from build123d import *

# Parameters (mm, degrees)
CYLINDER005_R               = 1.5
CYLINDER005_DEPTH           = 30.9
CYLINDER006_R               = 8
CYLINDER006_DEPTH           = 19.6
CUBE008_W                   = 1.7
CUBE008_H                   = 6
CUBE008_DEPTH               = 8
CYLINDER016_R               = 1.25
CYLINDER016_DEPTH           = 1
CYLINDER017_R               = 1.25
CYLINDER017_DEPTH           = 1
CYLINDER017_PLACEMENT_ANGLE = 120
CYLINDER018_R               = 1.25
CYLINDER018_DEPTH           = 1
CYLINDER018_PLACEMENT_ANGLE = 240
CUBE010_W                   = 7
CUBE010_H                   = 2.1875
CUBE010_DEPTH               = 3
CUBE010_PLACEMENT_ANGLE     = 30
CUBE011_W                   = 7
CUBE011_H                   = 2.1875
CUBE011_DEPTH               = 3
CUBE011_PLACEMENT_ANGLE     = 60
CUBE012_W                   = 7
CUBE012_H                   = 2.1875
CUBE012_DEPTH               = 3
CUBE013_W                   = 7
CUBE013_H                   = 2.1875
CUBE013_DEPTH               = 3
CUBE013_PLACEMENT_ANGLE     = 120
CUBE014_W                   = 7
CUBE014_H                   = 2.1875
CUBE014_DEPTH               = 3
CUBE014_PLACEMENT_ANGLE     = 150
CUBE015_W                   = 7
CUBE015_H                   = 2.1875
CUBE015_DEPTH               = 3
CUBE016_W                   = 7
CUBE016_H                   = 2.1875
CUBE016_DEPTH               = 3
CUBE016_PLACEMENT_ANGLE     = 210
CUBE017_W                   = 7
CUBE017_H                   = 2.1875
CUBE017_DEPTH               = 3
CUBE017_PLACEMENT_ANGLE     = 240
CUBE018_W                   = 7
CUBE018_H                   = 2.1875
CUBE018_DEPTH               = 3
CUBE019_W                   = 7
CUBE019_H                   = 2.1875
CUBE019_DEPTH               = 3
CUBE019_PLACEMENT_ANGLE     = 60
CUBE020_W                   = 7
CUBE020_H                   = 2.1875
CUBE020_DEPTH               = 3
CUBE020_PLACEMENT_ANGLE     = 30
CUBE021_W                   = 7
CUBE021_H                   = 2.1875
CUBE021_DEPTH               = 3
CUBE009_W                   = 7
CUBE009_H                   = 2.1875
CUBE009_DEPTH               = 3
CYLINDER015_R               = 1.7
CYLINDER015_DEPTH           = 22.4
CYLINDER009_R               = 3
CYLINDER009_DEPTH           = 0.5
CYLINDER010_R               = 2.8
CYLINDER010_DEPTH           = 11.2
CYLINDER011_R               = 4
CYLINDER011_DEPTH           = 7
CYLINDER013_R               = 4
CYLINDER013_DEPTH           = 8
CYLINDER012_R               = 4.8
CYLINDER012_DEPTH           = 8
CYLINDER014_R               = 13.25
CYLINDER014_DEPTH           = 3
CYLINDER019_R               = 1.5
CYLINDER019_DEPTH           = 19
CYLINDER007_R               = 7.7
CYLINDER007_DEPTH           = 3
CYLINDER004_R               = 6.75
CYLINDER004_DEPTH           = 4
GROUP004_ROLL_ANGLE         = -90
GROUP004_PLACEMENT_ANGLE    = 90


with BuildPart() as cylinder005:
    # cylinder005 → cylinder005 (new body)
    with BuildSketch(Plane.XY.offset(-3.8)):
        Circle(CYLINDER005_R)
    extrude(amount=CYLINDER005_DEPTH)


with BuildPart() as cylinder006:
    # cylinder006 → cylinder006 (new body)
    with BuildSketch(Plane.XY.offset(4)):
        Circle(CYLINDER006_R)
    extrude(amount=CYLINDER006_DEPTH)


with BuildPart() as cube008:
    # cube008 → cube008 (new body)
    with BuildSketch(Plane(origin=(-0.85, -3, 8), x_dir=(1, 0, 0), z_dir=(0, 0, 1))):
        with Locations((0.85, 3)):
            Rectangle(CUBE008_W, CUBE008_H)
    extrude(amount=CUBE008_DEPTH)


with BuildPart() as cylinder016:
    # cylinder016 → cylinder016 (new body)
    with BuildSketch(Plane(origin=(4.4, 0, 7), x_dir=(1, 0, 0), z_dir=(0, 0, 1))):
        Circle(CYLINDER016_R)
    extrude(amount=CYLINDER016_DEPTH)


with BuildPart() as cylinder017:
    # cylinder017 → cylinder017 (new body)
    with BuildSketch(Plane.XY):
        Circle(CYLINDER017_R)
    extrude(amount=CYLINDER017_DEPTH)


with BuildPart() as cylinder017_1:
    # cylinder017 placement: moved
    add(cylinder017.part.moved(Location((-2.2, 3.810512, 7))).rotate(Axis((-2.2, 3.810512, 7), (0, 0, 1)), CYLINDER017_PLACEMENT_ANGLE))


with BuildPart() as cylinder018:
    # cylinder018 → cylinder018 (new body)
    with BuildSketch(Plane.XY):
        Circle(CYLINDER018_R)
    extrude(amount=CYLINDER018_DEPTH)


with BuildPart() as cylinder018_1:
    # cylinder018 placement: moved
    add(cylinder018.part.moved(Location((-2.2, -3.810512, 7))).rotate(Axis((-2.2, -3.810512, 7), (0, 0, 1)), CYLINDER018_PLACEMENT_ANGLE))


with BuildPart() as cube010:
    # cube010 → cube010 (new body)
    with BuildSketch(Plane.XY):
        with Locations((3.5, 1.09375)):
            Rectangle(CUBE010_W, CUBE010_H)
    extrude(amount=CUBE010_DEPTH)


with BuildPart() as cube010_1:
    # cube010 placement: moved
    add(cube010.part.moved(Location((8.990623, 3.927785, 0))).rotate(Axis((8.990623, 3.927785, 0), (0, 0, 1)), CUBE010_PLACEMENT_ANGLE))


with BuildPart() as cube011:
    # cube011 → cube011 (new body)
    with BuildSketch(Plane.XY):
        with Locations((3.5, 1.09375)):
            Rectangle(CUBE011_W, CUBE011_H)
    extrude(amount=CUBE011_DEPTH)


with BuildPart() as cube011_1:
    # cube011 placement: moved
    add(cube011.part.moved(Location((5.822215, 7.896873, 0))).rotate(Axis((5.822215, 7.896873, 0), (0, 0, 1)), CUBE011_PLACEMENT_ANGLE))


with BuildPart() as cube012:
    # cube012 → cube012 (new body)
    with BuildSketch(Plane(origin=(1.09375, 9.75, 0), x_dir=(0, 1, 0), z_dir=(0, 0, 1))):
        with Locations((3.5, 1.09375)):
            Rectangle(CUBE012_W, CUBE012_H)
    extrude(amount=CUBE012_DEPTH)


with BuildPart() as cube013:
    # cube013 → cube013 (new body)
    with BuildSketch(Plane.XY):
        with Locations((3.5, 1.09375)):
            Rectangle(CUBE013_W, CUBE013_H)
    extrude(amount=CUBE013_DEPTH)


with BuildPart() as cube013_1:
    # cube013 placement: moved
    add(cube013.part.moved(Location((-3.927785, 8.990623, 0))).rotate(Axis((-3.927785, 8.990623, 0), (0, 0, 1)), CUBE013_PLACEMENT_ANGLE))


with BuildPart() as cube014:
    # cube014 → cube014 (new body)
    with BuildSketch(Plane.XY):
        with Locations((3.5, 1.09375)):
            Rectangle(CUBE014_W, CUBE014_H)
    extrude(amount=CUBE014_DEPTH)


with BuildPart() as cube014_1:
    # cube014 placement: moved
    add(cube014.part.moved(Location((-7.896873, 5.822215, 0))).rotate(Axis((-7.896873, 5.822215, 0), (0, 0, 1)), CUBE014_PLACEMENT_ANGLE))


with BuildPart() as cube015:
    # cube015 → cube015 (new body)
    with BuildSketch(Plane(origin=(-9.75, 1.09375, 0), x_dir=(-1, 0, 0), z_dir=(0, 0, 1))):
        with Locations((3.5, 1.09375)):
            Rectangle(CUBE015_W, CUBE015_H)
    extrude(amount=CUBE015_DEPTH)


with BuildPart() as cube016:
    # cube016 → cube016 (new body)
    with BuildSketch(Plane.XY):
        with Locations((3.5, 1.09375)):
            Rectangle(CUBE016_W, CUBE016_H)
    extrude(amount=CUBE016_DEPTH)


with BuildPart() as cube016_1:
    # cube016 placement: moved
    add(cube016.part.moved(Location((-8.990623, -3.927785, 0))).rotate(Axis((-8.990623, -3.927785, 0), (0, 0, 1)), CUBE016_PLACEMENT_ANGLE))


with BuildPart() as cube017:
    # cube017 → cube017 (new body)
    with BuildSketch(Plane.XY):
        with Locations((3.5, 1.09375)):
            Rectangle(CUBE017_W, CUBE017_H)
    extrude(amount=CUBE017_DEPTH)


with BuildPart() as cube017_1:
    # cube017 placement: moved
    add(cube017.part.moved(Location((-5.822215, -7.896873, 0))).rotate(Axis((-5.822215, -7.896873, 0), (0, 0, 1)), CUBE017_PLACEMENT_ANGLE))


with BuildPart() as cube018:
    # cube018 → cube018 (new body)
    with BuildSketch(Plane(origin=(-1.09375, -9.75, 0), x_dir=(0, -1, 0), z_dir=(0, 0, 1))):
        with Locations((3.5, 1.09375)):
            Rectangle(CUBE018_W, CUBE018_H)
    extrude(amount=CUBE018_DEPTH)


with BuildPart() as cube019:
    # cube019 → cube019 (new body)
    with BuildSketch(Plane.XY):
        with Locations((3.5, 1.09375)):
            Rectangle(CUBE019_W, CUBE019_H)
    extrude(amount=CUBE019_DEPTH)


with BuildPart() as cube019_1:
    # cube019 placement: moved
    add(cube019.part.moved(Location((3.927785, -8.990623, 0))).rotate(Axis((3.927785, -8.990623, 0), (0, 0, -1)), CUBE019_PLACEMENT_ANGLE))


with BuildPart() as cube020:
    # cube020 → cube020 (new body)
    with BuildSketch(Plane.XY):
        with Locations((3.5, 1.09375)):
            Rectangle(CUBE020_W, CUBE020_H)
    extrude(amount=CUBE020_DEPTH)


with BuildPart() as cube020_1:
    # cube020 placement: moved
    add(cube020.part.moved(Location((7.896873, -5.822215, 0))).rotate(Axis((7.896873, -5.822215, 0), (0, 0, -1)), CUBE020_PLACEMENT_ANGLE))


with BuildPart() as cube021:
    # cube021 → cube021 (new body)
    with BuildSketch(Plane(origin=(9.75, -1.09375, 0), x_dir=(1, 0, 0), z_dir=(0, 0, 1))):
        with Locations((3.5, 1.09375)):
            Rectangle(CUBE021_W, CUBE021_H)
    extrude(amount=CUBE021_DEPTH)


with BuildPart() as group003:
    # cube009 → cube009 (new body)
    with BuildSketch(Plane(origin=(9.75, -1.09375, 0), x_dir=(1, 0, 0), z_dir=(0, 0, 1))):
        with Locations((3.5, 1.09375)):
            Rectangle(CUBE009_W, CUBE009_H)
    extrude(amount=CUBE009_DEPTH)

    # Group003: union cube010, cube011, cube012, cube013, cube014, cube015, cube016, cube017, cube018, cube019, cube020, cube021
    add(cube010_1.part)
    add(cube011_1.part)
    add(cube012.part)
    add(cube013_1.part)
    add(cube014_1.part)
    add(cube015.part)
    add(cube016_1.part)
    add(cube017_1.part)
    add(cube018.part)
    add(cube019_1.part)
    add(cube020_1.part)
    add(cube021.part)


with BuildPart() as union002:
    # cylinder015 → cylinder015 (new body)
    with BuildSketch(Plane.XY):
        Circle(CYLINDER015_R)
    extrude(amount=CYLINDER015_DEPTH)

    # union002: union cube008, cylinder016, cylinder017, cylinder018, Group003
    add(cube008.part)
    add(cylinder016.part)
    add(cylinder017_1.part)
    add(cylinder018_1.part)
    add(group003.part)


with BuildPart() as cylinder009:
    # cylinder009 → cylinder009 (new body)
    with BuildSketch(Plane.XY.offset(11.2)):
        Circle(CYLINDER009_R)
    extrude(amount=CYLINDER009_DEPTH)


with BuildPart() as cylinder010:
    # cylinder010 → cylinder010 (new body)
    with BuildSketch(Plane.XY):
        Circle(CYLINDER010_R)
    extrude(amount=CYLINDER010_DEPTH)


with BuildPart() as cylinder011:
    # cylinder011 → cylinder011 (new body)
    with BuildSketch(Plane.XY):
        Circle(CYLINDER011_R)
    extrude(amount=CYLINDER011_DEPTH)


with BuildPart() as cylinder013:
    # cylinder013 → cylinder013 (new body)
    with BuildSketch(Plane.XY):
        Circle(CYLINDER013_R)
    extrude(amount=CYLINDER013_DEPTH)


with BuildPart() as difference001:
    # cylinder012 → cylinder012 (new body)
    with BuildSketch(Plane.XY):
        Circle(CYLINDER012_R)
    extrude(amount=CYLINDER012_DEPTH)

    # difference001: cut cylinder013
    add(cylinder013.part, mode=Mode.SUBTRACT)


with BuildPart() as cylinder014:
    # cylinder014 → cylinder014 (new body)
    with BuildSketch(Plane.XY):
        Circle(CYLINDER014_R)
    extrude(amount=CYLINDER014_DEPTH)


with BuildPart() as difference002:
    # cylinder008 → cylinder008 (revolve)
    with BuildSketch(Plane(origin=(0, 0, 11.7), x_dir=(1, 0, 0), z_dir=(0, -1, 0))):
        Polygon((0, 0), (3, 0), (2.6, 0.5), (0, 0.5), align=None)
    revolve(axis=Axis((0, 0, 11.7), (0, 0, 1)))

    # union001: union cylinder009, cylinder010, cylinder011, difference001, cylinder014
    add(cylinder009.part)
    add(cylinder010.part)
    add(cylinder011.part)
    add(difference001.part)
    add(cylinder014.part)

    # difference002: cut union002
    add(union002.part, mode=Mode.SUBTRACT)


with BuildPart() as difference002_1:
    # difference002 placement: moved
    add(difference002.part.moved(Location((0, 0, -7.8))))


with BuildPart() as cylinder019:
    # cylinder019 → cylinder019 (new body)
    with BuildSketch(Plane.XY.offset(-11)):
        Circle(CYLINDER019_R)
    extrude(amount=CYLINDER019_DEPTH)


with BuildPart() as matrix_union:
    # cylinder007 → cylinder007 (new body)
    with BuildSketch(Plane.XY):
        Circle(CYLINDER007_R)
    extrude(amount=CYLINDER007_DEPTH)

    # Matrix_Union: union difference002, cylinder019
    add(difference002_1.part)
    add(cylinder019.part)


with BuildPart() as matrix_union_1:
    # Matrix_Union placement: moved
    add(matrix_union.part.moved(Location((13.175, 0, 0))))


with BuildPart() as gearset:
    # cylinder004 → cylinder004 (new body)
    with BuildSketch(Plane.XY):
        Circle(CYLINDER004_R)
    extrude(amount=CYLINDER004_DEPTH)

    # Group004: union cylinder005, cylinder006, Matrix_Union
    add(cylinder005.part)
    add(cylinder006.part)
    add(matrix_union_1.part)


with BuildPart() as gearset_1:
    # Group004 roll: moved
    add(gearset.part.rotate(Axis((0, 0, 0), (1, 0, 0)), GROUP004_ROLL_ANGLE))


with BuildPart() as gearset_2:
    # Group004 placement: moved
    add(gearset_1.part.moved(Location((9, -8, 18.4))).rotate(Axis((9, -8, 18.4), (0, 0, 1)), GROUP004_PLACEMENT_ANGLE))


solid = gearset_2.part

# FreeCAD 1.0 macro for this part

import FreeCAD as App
import Part
import Sketcher

doc = App.newDocument("Part")
params = doc.addObject("Spreadsheet::Sheet", "Params")
for row, (alias, value) in enumerate([
    ("sketch1_diameter", "3 mm"),
    ("pad1_length", "30.9 mm"),
    ("sketch2_diameter", "16 mm"),
    ("pad2_length", "19.6 mm"),
    ("sketch3_height", "6 mm"),
    ("sketch3_width", "1.7 mm"),
    ("pad3_length", "8 mm"),
    ("sketch4_diameter", "2.5 mm"),
    ("pad4_length", "1 mm"),
    ("sketch5_diameter", "2.5 mm"),
    ("pad5_length", "1 mm"),
    ("sketch6_diameter", "2.5 mm"),
    ("pad6_length", "1 mm"),
    ("sketch7_width", "7 mm"),
    ("pad7_length", "3 mm"),
    ("sketch8_width", "7 mm"),
    ("pad8_length", "3 mm"),
    ("sketch9_height", "7 mm"),
    ("pad9_length", "3 mm"),
    ("sketch10_width", "7 mm"),
    ("pad10_length", "3 mm"),
    ("sketch11_width", "7 mm"),
    ("pad11_length", "3 mm"),
    ("sketch12_width", "7 mm"),
    ("pad12_length", "3 mm"),
    ("sketch13_width", "7 mm"),
    ("pad13_length", "3 mm"),
    ("sketch14_width", "7 mm"),
    ("pad14_length", "3 mm"),
    ("sketch15_height", "7 mm"),
    ("pad15_length", "3 mm"),
    ("sketch16_width", "7 mm"),
    ("pad16_length", "3 mm"),
    ("sketch17_width", "7 mm"),
    ("pad17_length", "3 mm"),
    ("sketch18_width", "7 mm"),
    ("pad18_length", "3 mm"),
    ("sketch19_width", "7 mm"),
    ("pad19_length", "3 mm"),
    ("sketch20_diameter", "3.4 mm"),
    ("pad20_length", "22.4 mm"),
    ("sketch21_diameter", "6 mm"),
    ("pad21_length", "0.5 mm"),
    ("sketch22_diameter", "5.6 mm"),
    ("pad22_length", "11.2 mm"),
    ("sketch23_diameter", "8 mm"),
    ("pad23_length", "7 mm"),
    ("sketch24_diameter", "8 mm"),
    ("pad24_length", "8 mm"),
    ("sketch25_diameter", "9.6 mm"),
    ("pad25_length", "8 mm"),
    ("sketch26_diameter", "26.5 mm"),
    ("pad26_length", "3 mm"),
    ("sketch27_width", "3 mm"),
    ("sketch27_width2", "2.6 mm"),
    ("sketch27_height", "0.5 mm"),
    ("revolution_angle", "360 deg"),
    ("sketch28_diameter", "3 mm"),
    ("pad27_length", "19 mm"),
    ("sketch29_diameter", "15.4 mm"),
    ("pad28_length", "3 mm"),
    ("sketch30_diameter", "13.5 mm"),
    ("pad29_length", "4 mm"),
], start=1):
    params.set(f"A{row}", alias)
    params.set(f"B{row}", "=" + value)
    params.setAlias(f"B{row}", alias)

body = doc.addObject("PartDesign::Body", "Body")

# Sketch on XY plane
sketch1 = body.newObject("Sketcher::SketchObject", "Sketch")
sketch1.AttachmentSupport = (doc.getObject("XY_Plane"), [""])
sketch1.MapMode = "FlatFace"
sketch1.AttachmentOffset = App.Placement(App.Vector(0, 0, -3.8), App.Rotation())
sketch1.addGeometry(Part.Circle(App.Vector(0, 0, 0), App.Vector(0, 0, 1), 1.5), False)
sketch1.addConstraint([
    Sketcher.Constraint("Coincident", 0, 3, -1, 1),
    Sketcher.Constraint("Diameter", 0, 3.0),
])
sketch1.setExpression("Constraints[1]", "Params.sketch1_diameter")
pad1 = body.newObject("PartDesign::Pad", "Pad")
pad1.Profile = sketch1
pad1.setExpression("Length", "Params.pad1_length")
body2 = doc.addObject("PartDesign::Body", "Body001")

# Sketch on XY plane
sketch2 = body2.newObject("Sketcher::SketchObject", "Sketch001")
sketch2.AttachmentSupport = (doc.getObject("XY_Plane001"), [""])
sketch2.MapMode = "FlatFace"
sketch2.AttachmentOffset = App.Placement(App.Vector(0, 0, 4), App.Rotation())
sketch2.addGeometry(Part.Circle(App.Vector(0, 0, 0), App.Vector(0, 0, 1), 8), False)
sketch2.addConstraint([
    Sketcher.Constraint("Coincident", 0, 3, -1, 1),
    Sketcher.Constraint("Diameter", 0, 16.0),
])
sketch2.setExpression("Constraints[1]", "Params.sketch2_diameter")
pad2 = body2.newObject("PartDesign::Pad", "Pad001")
pad2.Profile = sketch2
pad2.setExpression("Length", "Params.pad2_length")
body3 = doc.addObject("PartDesign::Body", "Body002")

# Sketch on XY plane
sketch3 = body3.newObject("Sketcher::SketchObject", "Sketch002")
sketch3.AttachmentSupport = (doc.getObject("XY_Plane002"), [""])
sketch3.MapMode = "FlatFace"
sketch3.AttachmentOffset = App.Placement(App.Vector(0, 0, 8), App.Rotation())
sketch3.addGeometry([
    Part.LineSegment(App.Vector(-0.8, 3, 0), App.Vector(-0.8, -3, 0)),
    Part.LineSegment(App.Vector(-0.8, -3, 0), App.Vector(0.8, -3, 0)),
    Part.LineSegment(App.Vector(0.8, -3, 0), App.Vector(0.8, 3, 0)),
    Part.LineSegment(App.Vector(0.8, 3, 0), App.Vector(-0.8, 3, 0)),
], False)
sketch3.addConstraint([
    Sketcher.Constraint("Coincident", 0, 2, 1, 1),
    Sketcher.Constraint("Coincident", 1, 2, 2, 1),
    Sketcher.Constraint("Coincident", 2, 2, 3, 1),
    Sketcher.Constraint("Coincident", 3, 2, 0, 1),
    Sketcher.Constraint("Vertical", 0),
    Sketcher.Constraint("Horizontal", 1),
    Sketcher.Constraint("Vertical", 2),
    Sketcher.Constraint("Horizontal", 3),
    Sketcher.Constraint("Symmetric", 0, 2, 2, 2, -1, 1),
    Sketcher.Constraint("DistanceY", 0, 2, 0, 1, 6.0),
    Sketcher.Constraint("DistanceX", 1, 1, 1, 2, 1.7),
])
sketch3.setExpression("Constraints[9]", "Params.sketch3_height")
sketch3.setExpression("Constraints[10]", "Params.sketch3_width")
pad3 = body3.newObject("PartDesign::Pad", "Pad002")
pad3.Profile = sketch3
pad3.setExpression("Length", "Params.pad3_length")
body4 = doc.addObject("PartDesign::Body", "Body003")

# Sketch on XY plane
sketch4 = body4.newObject("Sketcher::SketchObject", "Sketch003")
sketch4.AttachmentSupport = (doc.getObject("XY_Plane003"), [""])
sketch4.MapMode = "FlatFace"
sketch4.AttachmentOffset = App.Placement(App.Vector(0, 0, 7), App.Rotation())
sketch4.addGeometry(Part.Circle(App.Vector(4.4, 0, 0), App.Vector(0, 0, 1), 1.2), False)
sketch4.addConstraint([
    Sketcher.Constraint("PointOnObject", 0, 3, -1),
    Sketcher.Constraint("Diameter", 0, 2.5),
    Sketcher.Constraint("DistanceX", -1, 1, 0, 3, 4.4),
])
sketch4.setExpression("Constraints[1]", "Params.sketch4_diameter")
pad4 = body4.newObject("PartDesign::Pad", "Pad003")
pad4.Profile = sketch4
pad4.setExpression("Length", "Params.pad4_length")
body5 = doc.addObject("PartDesign::Body", "Body004")

# Sketch on XY plane
sketch5 = body5.newObject("Sketcher::SketchObject", "Sketch004")
sketch5.AttachmentSupport = (doc.getObject("XY_Plane004"), [""])
sketch5.MapMode = "FlatFace"
sketch5.addGeometry(Part.Circle(App.Vector(0, 0, 0), App.Vector(0, 0, 1), 1.2), False)
sketch5.addConstraint([
    Sketcher.Constraint("Coincident", 0, 3, -1, 1),
    Sketcher.Constraint("Diameter", 0, 2.5),
])
sketch5.setExpression("Constraints[1]", "Params.sketch5_diameter")
pad5 = body5.newObject("PartDesign::Pad", "Pad004")
pad5.Profile = sketch5
pad5.setExpression("Length", "Params.pad5_length")
body6 = doc.addObject("PartDesign::Body", "Body005")
doc.recompute()

body5.Placement = App.Placement(App.Vector(-2.2, 3.810512, 7), App.Rotation(App.Vector(0, 0, 1), 120))
boolean = body6.newObject("PartDesign::Boolean", "Boolean")
boolean.Type = "Fuse"
boolean.addObjects([body5])
body7 = doc.addObject("PartDesign::Body", "Body006")

# Sketch on XY plane
sketch6 = body7.newObject("Sketcher::SketchObject", "Sketch005")
sketch6.AttachmentSupport = (doc.getObject("XY_Plane006"), [""])
sketch6.MapMode = "FlatFace"
sketch6.addGeometry(Part.Circle(App.Vector(0, 0, 0), App.Vector(0, 0, 1), 1.2), False)
sketch6.addConstraint([
    Sketcher.Constraint("Coincident", 0, 3, -1, 1),
    Sketcher.Constraint("Diameter", 0, 2.5),
])
sketch6.setExpression("Constraints[1]", "Params.sketch6_diameter")
pad6 = body7.newObject("PartDesign::Pad", "Pad005")
pad6.Profile = sketch6
pad6.setExpression("Length", "Params.pad6_length")
body8 = doc.addObject("PartDesign::Body", "Body007")
doc.recompute()

body7.Placement = App.Placement(App.Vector(-2.2, -3.810512, 7), App.Rotation(App.Vector(0, 0, 1), 240))
boolean2 = body8.newObject("PartDesign::Boolean", "Boolean001")
boolean2.Type = "Fuse"
boolean2.addObjects([body7])
body9 = doc.addObject("PartDesign::Body", "Body008")

# Sketch on XY plane
sketch7 = body9.newObject("Sketcher::SketchObject", "Sketch006")
sketch7.AttachmentSupport = (doc.getObject("XY_Plane008"), [""])
sketch7.MapMode = "FlatFace"
sketch7.addGeometry([
    Part.LineSegment(App.Vector(0, 2.2, 0), App.Vector(0, 0, 0)),
    Part.LineSegment(App.Vector(0, 0, 0), App.Vector(7, 0, 0)),
    Part.LineSegment(App.Vector(7, 0, 0), App.Vector(7, 2.2, 0)),
    Part.LineSegment(App.Vector(7, 2.2, 0), App.Vector(0, 2.2, 0)),
], False)
sketch7.addConstraint([
    Sketcher.Constraint("Coincident", 0, 2, 1, 1),
    Sketcher.Constraint("Coincident", 1, 2, 2, 1),
    Sketcher.Constraint("Coincident", 2, 2, 3, 1),
    Sketcher.Constraint("Coincident", 3, 2, 0, 1),
    Sketcher.Constraint("Vertical", 0),
    Sketcher.Constraint("Horizontal", 1),
    Sketcher.Constraint("Vertical", 2),
    Sketcher.Constraint("Horizontal", 3),
    Sketcher.Constraint("Coincident", 0, 2, -1, 1),
    Sketcher.Constraint("DistanceX", 1, 1, 1, 2, 7.0),
    Sketcher.Constraint("DistanceY", 0, 2, 0, 1, 2.1875),
])
sketch7.setExpression("Constraints[9]", "Params.sketch7_width")
pad7 = body9.newObject("PartDesign::Pad", "Pad006")
pad7.Profile = sketch7
pad7.setExpression("Length", "Params.pad7_length")
body10 = doc.addObject("PartDesign::Body", "Body009")
doc.recompute()

body9.Placement = App.Placement(App.Vector(8.990623, 3.927785, 0), App.Rotation(App.Vector(0, 0, 1), 30))
boolean3 = body10.newObject("PartDesign::Boolean", "Boolean002")
boolean3.Type = "Fuse"
boolean3.addObjects([body9])
body11 = doc.addObject("PartDesign::Body", "Body010")

# Sketch on XY plane
sketch8 = body11.newObject("Sketcher::SketchObject", "Sketch007")
sketch8.AttachmentSupport = (doc.getObject("XY_Plane010"), [""])
sketch8.MapMode = "FlatFace"
sketch8.addGeometry([
    Part.LineSegment(App.Vector(0, 2.2, 0), App.Vector(0, 0, 0)),
    Part.LineSegment(App.Vector(0, 0, 0), App.Vector(7, 0, 0)),
    Part.LineSegment(App.Vector(7, 0, 0), App.Vector(7, 2.2, 0)),
    Part.LineSegment(App.Vector(7, 2.2, 0), App.Vector(0, 2.2, 0)),
], False)
sketch8.addConstraint([
    Sketcher.Constraint("Coincident", 0, 2, 1, 1),
    Sketcher.Constraint("Coincident", 1, 2, 2, 1),
    Sketcher.Constraint("Coincident", 2, 2, 3, 1),
    Sketcher.Constraint("Coincident", 3, 2, 0, 1),
    Sketcher.Constraint("Vertical", 0),
    Sketcher.Constraint("Horizontal", 1),
    Sketcher.Constraint("Vertical", 2),
    Sketcher.Constraint("Horizontal", 3),
    Sketcher.Constraint("Coincident", 0, 2, -1, 1),
    Sketcher.Constraint("DistanceX", 1, 1, 1, 2, 7.0),
    Sketcher.Constraint("DistanceY", 0, 2, 0, 1, 2.1875),
])
sketch8.setExpression("Constraints[9]", "Params.sketch8_width")
pad8 = body11.newObject("PartDesign::Pad", "Pad007")
pad8.Profile = sketch8
pad8.setExpression("Length", "Params.pad8_length")
body12 = doc.addObject("PartDesign::Body", "Body011")
doc.recompute()

body11.Placement = App.Placement(App.Vector(5.822215, 7.896873, 0), App.Rotation(App.Vector(0, 0, 1), 60))
boolean4 = body12.newObject("PartDesign::Boolean", "Boolean003")
boolean4.Type = "Fuse"
boolean4.addObjects([body11])
body13 = doc.addObject("PartDesign::Body", "Body012")

# Sketch on XY plane
sketch9 = body13.newObject("Sketcher::SketchObject", "Sketch008")
sketch9.AttachmentSupport = (doc.getObject("XY_Plane012"), [""])
sketch9.MapMode = "FlatFace"
sketch9.addGeometry([
    Part.LineSegment(App.Vector(-1.1, 9.8, 0), App.Vector(1.1, 9.8, 0)),
    Part.LineSegment(App.Vector(1.1, 9.8, 0), App.Vector(1.1, 16.8, 0)),
    Part.LineSegment(App.Vector(1.1, 16.8, 0), App.Vector(-1.1, 16.8, 0)),
    Part.LineSegment(App.Vector(-1.1, 16.8, 0), App.Vector(-1.1, 9.8, 0)),
], False)
sketch9.addConstraint([
    Sketcher.Constraint("Coincident", 0, 2, 1, 1),
    Sketcher.Constraint("Coincident", 1, 2, 2, 1),
    Sketcher.Constraint("Coincident", 2, 2, 3, 1),
    Sketcher.Constraint("Coincident", 3, 2, 0, 1),
    Sketcher.Constraint("Horizontal", 0),
    Sketcher.Constraint("Vertical", 1),
    Sketcher.Constraint("Horizontal", 2),
    Sketcher.Constraint("Vertical", 3),
    Sketcher.Constraint("DistanceY", 1, 1, 1, 2, 7.0),
    Sketcher.Constraint("DistanceY", -1, 1, 0, 2, 9.75),
    Sketcher.Constraint("DistanceX", 0, 1, 0, 2, 2.1875),
    Sketcher.Constraint("DistanceX", -1, 1, 0, 2, 1.09375),
])
sketch9.setExpression("Constraints[8]", "Params.sketch9_height")
pad9 = body13.newObject("PartDesign::Pad", "Pad008")
pad9.Profile = sketch9
pad9.setExpression("Length", "Params.pad9_length")
body14 = doc.addObject("PartDesign::Body", "Body013")

# Sketch on XY plane
sketch10 = body14.newObject("Sketcher::SketchObject", "Sketch009")
sketch10.AttachmentSupport = (doc.getObject("XY_Plane013"), [""])
sketch10.MapMode = "FlatFace"
sketch10.addGeometry([
    Part.LineSegment(App.Vector(0, 2.2, 0), App.Vector(0, 0, 0)),
    Part.LineSegment(App.Vector(0, 0, 0), App.Vector(7, 0, 0)),
    Part.LineSegment(App.Vector(7, 0, 0), App.Vector(7, 2.2, 0)),
    Part.LineSegment(App.Vector(7, 2.2, 0), App.Vector(0, 2.2, 0)),
], False)
sketch10.addConstraint([
    Sketcher.Constraint("Coincident", 0, 2, 1, 1),
    Sketcher.Constraint("Coincident", 1, 2, 2, 1),
    Sketcher.Constraint("Coincident", 2, 2, 3, 1),
    Sketcher.Constraint("Coincident", 3, 2, 0, 1),
    Sketcher.Constraint("Vertical", 0),
    Sketcher.Constraint("Horizontal", 1),
    Sketcher.Constraint("Vertical", 2),
    Sketcher.Constraint("Horizontal", 3),
    Sketcher.Constraint("Coincident", 0, 2, -1, 1),
    Sketcher.Constraint("DistanceX", 1, 1, 1, 2, 7.0),
    Sketcher.Constraint("DistanceY", 0, 2, 0, 1, 2.1875),
])
sketch10.setExpression("Constraints[9]", "Params.sketch10_width")
pad10 = body14.newObject("PartDesign::Pad", "Pad009")
pad10.Profile = sketch10
pad10.setExpression("Length", "Params.pad10_length")
body15 = doc.addObject("PartDesign::Body", "Body014")
doc.recompute()

body14.Placement = App.Placement(App.Vector(-3.927785, 8.990623, 0), App.Rotation(App.Vector(0, 0, 1), 120))
boolean5 = body15.newObject("PartDesign::Boolean", "Boolean004")
boolean5.Type = "Fuse"
boolean5.addObjects([body14])
body16 = doc.addObject("PartDesign::Body", "Body015")

# Sketch on XY plane
sketch11 = body16.newObject("Sketcher::SketchObject", "Sketch010")
sketch11.AttachmentSupport = (doc.getObject("XY_Plane015"), [""])
sketch11.MapMode = "FlatFace"
sketch11.addGeometry([
    Part.LineSegment(App.Vector(0, 2.2, 0), App.Vector(0, 0, 0)),
    Part.LineSegment(App.Vector(0, 0, 0), App.Vector(7, 0, 0)),
    Part.LineSegment(App.Vector(7, 0, 0), App.Vector(7, 2.2, 0)),
    Part.LineSegment(App.Vector(7, 2.2, 0), App.Vector(0, 2.2, 0)),
], False)
sketch11.addConstraint([
    Sketcher.Constraint("Coincident", 0, 2, 1, 1),
    Sketcher.Constraint("Coincident", 1, 2, 2, 1),
    Sketcher.Constraint("Coincident", 2, 2, 3, 1),
    Sketcher.Constraint("Coincident", 3, 2, 0, 1),
    Sketcher.Constraint("Vertical", 0),
    Sketcher.Constraint("Horizontal", 1),
    Sketcher.Constraint("Vertical", 2),
    Sketcher.Constraint("Horizontal", 3),
    Sketcher.Constraint("Coincident", 0, 2, -1, 1),
    Sketcher.Constraint("DistanceX", 1, 1, 1, 2, 7.0),
    Sketcher.Constraint("DistanceY", 0, 2, 0, 1, 2.1875),
])
sketch11.setExpression("Constraints[9]", "Params.sketch11_width")
pad11 = body16.newObject("PartDesign::Pad", "Pad010")
pad11.Profile = sketch11
pad11.setExpression("Length", "Params.pad11_length")
body17 = doc.addObject("PartDesign::Body", "Body016")
doc.recompute()

body16.Placement = App.Placement(App.Vector(-7.896873, 5.822215, 0), App.Rotation(App.Vector(0, 0, 1), 150))
boolean6 = body17.newObject("PartDesign::Boolean", "Boolean005")
boolean6.Type = "Fuse"
boolean6.addObjects([body16])
body18 = doc.addObject("PartDesign::Body", "Body017")

# Sketch on XY plane
sketch12 = body18.newObject("Sketcher::SketchObject", "Sketch011")
sketch12.AttachmentSupport = (doc.getObject("XY_Plane017"), [""])
sketch12.MapMode = "FlatFace"
sketch12.addGeometry([
    Part.LineSegment(App.Vector(-9.8, -1.1, 0), App.Vector(-9.8, 1.1, 0)),
    Part.LineSegment(App.Vector(-9.8, 1.1, 0), App.Vector(-16.8, 1.1, 0)),
    Part.LineSegment(App.Vector(-16.8, 1.1, 0), App.Vector(-16.8, -1.1, 0)),
    Part.LineSegment(App.Vector(-16.8, -1.1, 0), App.Vector(-9.8, -1.1, 0)),
], False)
sketch12.addConstraint([
    Sketcher.Constraint("Coincident", 0, 2, 1, 1),
    Sketcher.Constraint("Coincident", 1, 2, 2, 1),
    Sketcher.Constraint("Coincident", 2, 2, 3, 1),
    Sketcher.Constraint("Coincident", 3, 2, 0, 1),
    Sketcher.Constraint("Vertical", 0),
    Sketcher.Constraint("Horizontal", 1),
    Sketcher.Constraint("Vertical", 2),
    Sketcher.Constraint("Horizontal", 3),
    Sketcher.Constraint("DistanceX", 1, 2, 1, 1, 7.0),
    Sketcher.Constraint("DistanceX", 0, 2, -1, 1, 9.75),
    Sketcher.Constraint("DistanceY", 0, 1, 0, 2, 2.1875),
    Sketcher.Constraint("DistanceY", -1, 1, 0, 2, 1.09375),
])
sketch12.setExpression("Constraints[8]", "Params.sketch12_width")
pad12 = body18.newObject("PartDesign::Pad", "Pad011")
pad12.Profile = sketch12
pad12.setExpression("Length", "Params.pad12_length")
body19 = doc.addObject("PartDesign::Body", "Body018")

# Sketch on XY plane
sketch13 = body19.newObject("Sketcher::SketchObject", "Sketch012")
sketch13.AttachmentSupport = (doc.getObject("XY_Plane018"), [""])
sketch13.MapMode = "FlatFace"
sketch13.addGeometry([
    Part.LineSegment(App.Vector(0, 2.2, 0), App.Vector(0, 0, 0)),
    Part.LineSegment(App.Vector(0, 0, 0), App.Vector(7, 0, 0)),
    Part.LineSegment(App.Vector(7, 0, 0), App.Vector(7, 2.2, 0)),
    Part.LineSegment(App.Vector(7, 2.2, 0), App.Vector(0, 2.2, 0)),
], False)
sketch13.addConstraint([
    Sketcher.Constraint("Coincident", 0, 2, 1, 1),
    Sketcher.Constraint("Coincident", 1, 2, 2, 1),
    Sketcher.Constraint("Coincident", 2, 2, 3, 1),
    Sketcher.Constraint("Coincident", 3, 2, 0, 1),
    Sketcher.Constraint("Vertical", 0),
    Sketcher.Constraint("Horizontal", 1),
    Sketcher.Constraint("Vertical", 2),
    Sketcher.Constraint("Horizontal", 3),
    Sketcher.Constraint("Coincident", 0, 2, -1, 1),
    Sketcher.Constraint("DistanceX", 1, 1, 1, 2, 7.0),
    Sketcher.Constraint("DistanceY", 0, 2, 0, 1, 2.1875),
])
sketch13.setExpression("Constraints[9]", "Params.sketch13_width")
pad13 = body19.newObject("PartDesign::Pad", "Pad012")
pad13.Profile = sketch13
pad13.setExpression("Length", "Params.pad13_length")
body20 = doc.addObject("PartDesign::Body", "Body019")
doc.recompute()

body19.Placement = App.Placement(App.Vector(-8.990623, -3.927785, 0), App.Rotation(App.Vector(0, 0, 1), 210))
boolean7 = body20.newObject("PartDesign::Boolean", "Boolean006")
boolean7.Type = "Fuse"
boolean7.addObjects([body19])
body21 = doc.addObject("PartDesign::Body", "Body020")

# Sketch on XY plane
sketch14 = body21.newObject("Sketcher::SketchObject", "Sketch013")
sketch14.AttachmentSupport = (doc.getObject("XY_Plane020"), [""])
sketch14.MapMode = "FlatFace"
sketch14.addGeometry([
    Part.LineSegment(App.Vector(0, 2.2, 0), App.Vector(0, 0, 0)),
    Part.LineSegment(App.Vector(0, 0, 0), App.Vector(7, 0, 0)),
    Part.LineSegment(App.Vector(7, 0, 0), App.Vector(7, 2.2, 0)),
    Part.LineSegment(App.Vector(7, 2.2, 0), App.Vector(0, 2.2, 0)),
], False)
sketch14.addConstraint([
    Sketcher.Constraint("Coincident", 0, 2, 1, 1),
    Sketcher.Constraint("Coincident", 1, 2, 2, 1),
    Sketcher.Constraint("Coincident", 2, 2, 3, 1),
    Sketcher.Constraint("Coincident", 3, 2, 0, 1),
    Sketcher.Constraint("Vertical", 0),
    Sketcher.Constraint("Horizontal", 1),
    Sketcher.Constraint("Vertical", 2),
    Sketcher.Constraint("Horizontal", 3),
    Sketcher.Constraint("Coincident", 0, 2, -1, 1),
    Sketcher.Constraint("DistanceX", 1, 1, 1, 2, 7.0),
    Sketcher.Constraint("DistanceY", 0, 2, 0, 1, 2.1875),
])
sketch14.setExpression("Constraints[9]", "Params.sketch14_width")
pad14 = body21.newObject("PartDesign::Pad", "Pad013")
pad14.Profile = sketch14
pad14.setExpression("Length", "Params.pad14_length")
body22 = doc.addObject("PartDesign::Body", "Body021")
doc.recompute()

body21.Placement = App.Placement(App.Vector(-5.822215, -7.896873, 0), App.Rotation(App.Vector(0, 0, 1), 240))
boolean8 = body22.newObject("PartDesign::Boolean", "Boolean007")
boolean8.Type = "Fuse"
boolean8.addObjects([body21])
body23 = doc.addObject("PartDesign::Body", "Body022")

# Sketch on XY plane
sketch15 = body23.newObject("Sketcher::SketchObject", "Sketch014")
sketch15.AttachmentSupport = (doc.getObject("XY_Plane022"), [""])
sketch15.MapMode = "FlatFace"
sketch15.addGeometry([
    Part.LineSegment(App.Vector(1.1, -9.8, 0), App.Vector(-1.1, -9.8, 0)),
    Part.LineSegment(App.Vector(-1.1, -9.8, 0), App.Vector(-1.1, -16.8, 0)),
    Part.LineSegment(App.Vector(-1.1, -16.8, 0), App.Vector(1.1, -16.8, 0)),
    Part.LineSegment(App.Vector(1.1, -16.8, 0), App.Vector(1.1, -9.8, 0)),
], False)
sketch15.addConstraint([
    Sketcher.Constraint("Coincident", 0, 2, 1, 1),
    Sketcher.Constraint("Coincident", 1, 2, 2, 1),
    Sketcher.Constraint("Coincident", 2, 2, 3, 1),
    Sketcher.Constraint("Coincident", 3, 2, 0, 1),
    Sketcher.Constraint("Horizontal", 0),
    Sketcher.Constraint("Vertical", 1),
    Sketcher.Constraint("Horizontal", 2),
    Sketcher.Constraint("Vertical", 3),
    Sketcher.Constraint("DistanceY", 1, 2, 1, 1, 7.0),
    Sketcher.Constraint("DistanceY", 0, 2, -1, 1, 9.75),
    Sketcher.Constraint("DistanceX", 0, 2, 0, 1, 2.1875),
    Sketcher.Constraint("DistanceX", 0, 2, -1, 1, 1.09375),
])
sketch15.setExpression("Constraints[8]", "Params.sketch15_height")
pad15 = body23.newObject("PartDesign::Pad", "Pad014")
pad15.Profile = sketch15
pad15.setExpression("Length", "Params.pad15_length")
body24 = doc.addObject("PartDesign::Body", "Body023")

# Sketch on XY plane
sketch16 = body24.newObject("Sketcher::SketchObject", "Sketch015")
sketch16.AttachmentSupport = (doc.getObject("XY_Plane023"), [""])
sketch16.MapMode = "FlatFace"
sketch16.addGeometry([
    Part.LineSegment(App.Vector(0, 2.2, 0), App.Vector(0, 0, 0)),
    Part.LineSegment(App.Vector(0, 0, 0), App.Vector(7, 0, 0)),
    Part.LineSegment(App.Vector(7, 0, 0), App.Vector(7, 2.2, 0)),
    Part.LineSegment(App.Vector(7, 2.2, 0), App.Vector(0, 2.2, 0)),
], False)
sketch16.addConstraint([
    Sketcher.Constraint("Coincident", 0, 2, 1, 1),
    Sketcher.Constraint("Coincident", 1, 2, 2, 1),
    Sketcher.Constraint("Coincident", 2, 2, 3, 1),
    Sketcher.Constraint("Coincident", 3, 2, 0, 1),
    Sketcher.Constraint("Vertical", 0),
    Sketcher.Constraint("Horizontal", 1),
    Sketcher.Constraint("Vertical", 2),
    Sketcher.Constraint("Horizontal", 3),
    Sketcher.Constraint("Coincident", 0, 2, -1, 1),
    Sketcher.Constraint("DistanceX", 1, 1, 1, 2, 7.0),
    Sketcher.Constraint("DistanceY", 0, 2, 0, 1, 2.1875),
])
sketch16.setExpression("Constraints[9]", "Params.sketch16_width")
pad16 = body24.newObject("PartDesign::Pad", "Pad015")
pad16.Profile = sketch16
pad16.setExpression("Length", "Params.pad16_length")
body25 = doc.addObject("PartDesign::Body", "Body024")
doc.recompute()

body24.Placement = App.Placement(App.Vector(3.927785, -8.990623, 0), App.Rotation(App.Vector(0, 0, -1), 60))
boolean9 = body25.newObject("PartDesign::Boolean", "Boolean008")
boolean9.Type = "Fuse"
boolean9.addObjects([body24])
body26 = doc.addObject("PartDesign::Body", "Body025")

# Sketch on XY plane
sketch17 = body26.newObject("Sketcher::SketchObject", "Sketch016")
sketch17.AttachmentSupport = (doc.getObject("XY_Plane025"), [""])
sketch17.MapMode = "FlatFace"
sketch17.addGeometry([
    Part.LineSegment(App.Vector(0, 2.2, 0), App.Vector(0, 0, 0)),
    Part.LineSegment(App.Vector(0, 0, 0), App.Vector(7, 0, 0)),
    Part.LineSegment(App.Vector(7, 0, 0), App.Vector(7, 2.2, 0)),
    Part.LineSegment(App.Vector(7, 2.2, 0), App.Vector(0, 2.2, 0)),
], False)
sketch17.addConstraint([
    Sketcher.Constraint("Coincident", 0, 2, 1, 1),
    Sketcher.Constraint("Coincident", 1, 2, 2, 1),
    Sketcher.Constraint("Coincident", 2, 2, 3, 1),
    Sketcher.Constraint("Coincident", 3, 2, 0, 1),
    Sketcher.Constraint("Vertical", 0),
    Sketcher.Constraint("Horizontal", 1),
    Sketcher.Constraint("Vertical", 2),
    Sketcher.Constraint("Horizontal", 3),
    Sketcher.Constraint("Coincident", 0, 2, -1, 1),
    Sketcher.Constraint("DistanceX", 1, 1, 1, 2, 7.0),
    Sketcher.Constraint("DistanceY", 0, 2, 0, 1, 2.1875),
])
sketch17.setExpression("Constraints[9]", "Params.sketch17_width")
pad17 = body26.newObject("PartDesign::Pad", "Pad016")
pad17.Profile = sketch17
pad17.setExpression("Length", "Params.pad17_length")
body27 = doc.addObject("PartDesign::Body", "Body026")
doc.recompute()

body26.Placement = App.Placement(App.Vector(7.896873, -5.822215, 0), App.Rotation(App.Vector(0, 0, -1), 30))
boolean10 = body27.newObject("PartDesign::Boolean", "Boolean009")
boolean10.Type = "Fuse"
boolean10.addObjects([body26])
body28 = doc.addObject("PartDesign::Body", "Body027")

# Sketch on XY plane
sketch18 = body28.newObject("Sketcher::SketchObject", "Sketch017")
sketch18.AttachmentSupport = (doc.getObject("XY_Plane027"), [""])
sketch18.MapMode = "FlatFace"
sketch18.addGeometry([
    Part.LineSegment(App.Vector(9.8, 1.1, 0), App.Vector(9.8, -1.1, 0)),
    Part.LineSegment(App.Vector(9.8, -1.1, 0), App.Vector(16.8, -1.1, 0)),
    Part.LineSegment(App.Vector(16.8, -1.1, 0), App.Vector(16.8, 1.1, 0)),
    Part.LineSegment(App.Vector(16.8, 1.1, 0), App.Vector(9.8, 1.1, 0)),
], False)
sketch18.addConstraint([
    Sketcher.Constraint("Coincident", 0, 2, 1, 1),
    Sketcher.Constraint("Coincident", 1, 2, 2, 1),
    Sketcher.Constraint("Coincident", 2, 2, 3, 1),
    Sketcher.Constraint("Coincident", 3, 2, 0, 1),
    Sketcher.Constraint("Vertical", 0),
    Sketcher.Constraint("Horizontal", 1),
    Sketcher.Constraint("Vertical", 2),
    Sketcher.Constraint("Horizontal", 3),
    Sketcher.Constraint("DistanceX", 1, 1, 1, 2, 7.0),
    Sketcher.Constraint("DistanceX", -1, 1, 0, 2, 9.75),
    Sketcher.Constraint("DistanceY", 0, 2, 0, 1, 2.1875),
    Sketcher.Constraint("DistanceY", 0, 2, -1, 1, 1.09375),
])
sketch18.setExpression("Constraints[8]", "Params.sketch18_width")
pad18 = body28.newObject("PartDesign::Pad", "Pad017")
pad18.Profile = sketch18
pad18.setExpression("Length", "Params.pad18_length")
body29 = doc.addObject("PartDesign::Body", "Body028")
body29.AllowCompound = True

# Sketch on XY plane
sketch19 = body29.newObject("Sketcher::SketchObject", "Sketch018")
sketch19.AttachmentSupport = (doc.getObject("XY_Plane028"), [""])
sketch19.MapMode = "FlatFace"
sketch19.addGeometry([
    Part.LineSegment(App.Vector(9.8, 1.1, 0), App.Vector(9.8, -1.1, 0)),
    Part.LineSegment(App.Vector(9.8, -1.1, 0), App.Vector(16.8, -1.1, 0)),
    Part.LineSegment(App.Vector(16.8, -1.1, 0), App.Vector(16.8, 1.1, 0)),
    Part.LineSegment(App.Vector(16.8, 1.1, 0), App.Vector(9.8, 1.1, 0)),
], False)
sketch19.addConstraint([
    Sketcher.Constraint("Coincident", 0, 2, 1, 1),
    Sketcher.Constraint("Coincident", 1, 2, 2, 1),
    Sketcher.Constraint("Coincident", 2, 2, 3, 1),
    Sketcher.Constraint("Coincident", 3, 2, 0, 1),
    Sketcher.Constraint("Vertical", 0),
    Sketcher.Constraint("Horizontal", 1),
    Sketcher.Constraint("Vertical", 2),
    Sketcher.Constraint("Horizontal", 3),
    Sketcher.Constraint("DistanceX", 1, 1, 1, 2, 7.0),
    Sketcher.Constraint("DistanceX", -1, 1, 0, 2, 9.75),
    Sketcher.Constraint("DistanceY", 0, 2, 0, 1, 2.1875),
    Sketcher.Constraint("DistanceY", 0, 2, -1, 1, 1.09375),
])
sketch19.setExpression("Constraints[8]", "Params.sketch19_width")
pad19 = body29.newObject("PartDesign::Pad", "Pad018")
pad19.Profile = sketch19
pad19.setExpression("Length", "Params.pad19_length")
doc.recompute()

boolean11 = body29.newObject("PartDesign::Boolean", "Boolean010")
boolean11.Type = "Fuse"
boolean11.addObjects([body10])
doc.recompute()

boolean12 = body29.newObject("PartDesign::Boolean", "Boolean011")
boolean12.Type = "Fuse"
boolean12.addObjects([body12])
doc.recompute()

boolean13 = body29.newObject("PartDesign::Boolean", "Boolean012")
boolean13.Type = "Fuse"
boolean13.addObjects([body13])
doc.recompute()

boolean14 = body29.newObject("PartDesign::Boolean", "Boolean013")
boolean14.Type = "Fuse"
boolean14.addObjects([body15])
doc.recompute()

boolean15 = body29.newObject("PartDesign::Boolean", "Boolean014")
boolean15.Type = "Fuse"
boolean15.addObjects([body17])
doc.recompute()

boolean16 = body29.newObject("PartDesign::Boolean", "Boolean015")
boolean16.Type = "Fuse"
boolean16.addObjects([body18])
doc.recompute()

boolean17 = body29.newObject("PartDesign::Boolean", "Boolean016")
boolean17.Type = "Fuse"
boolean17.addObjects([body20])
doc.recompute()

boolean18 = body29.newObject("PartDesign::Boolean", "Boolean017")
boolean18.Type = "Fuse"
boolean18.addObjects([body22])
doc.recompute()

boolean19 = body29.newObject("PartDesign::Boolean", "Boolean018")
boolean19.Type = "Fuse"
boolean19.addObjects([body23])
doc.recompute()

boolean20 = body29.newObject("PartDesign::Boolean", "Boolean019")
boolean20.Type = "Fuse"
boolean20.addObjects([body25])
doc.recompute()

boolean21 = body29.newObject("PartDesign::Boolean", "Boolean020")
boolean21.Type = "Fuse"
boolean21.addObjects([body27])
doc.recompute()

boolean22 = body29.newObject("PartDesign::Boolean", "Boolean021")
boolean22.Type = "Fuse"
boolean22.addObjects([body28])
body30 = doc.addObject("PartDesign::Body", "Body029")
body30.AllowCompound = True

# Sketch on XY plane
sketch20 = body30.newObject("Sketcher::SketchObject", "Sketch019")
sketch20.AttachmentSupport = (doc.getObject("XY_Plane029"), [""])
sketch20.MapMode = "FlatFace"
sketch20.addGeometry(Part.Circle(App.Vector(0, 0, 0), App.Vector(0, 0, 1), 1.7), False)
sketch20.addConstraint([
    Sketcher.Constraint("Coincident", 0, 3, -1, 1),
    Sketcher.Constraint("Diameter", 0, 3.4),
])
sketch20.setExpression("Constraints[1]", "Params.sketch20_diameter")
pad20 = body30.newObject("PartDesign::Pad", "Pad019")
pad20.Profile = sketch20
pad20.setExpression("Length", "Params.pad20_length")
doc.recompute()

boolean23 = body30.newObject("PartDesign::Boolean", "Boolean022")
boolean23.Type = "Fuse"
boolean23.addObjects([body3])
doc.recompute()

boolean24 = body30.newObject("PartDesign::Boolean", "Boolean023")
boolean24.Type = "Fuse"
boolean24.addObjects([body4])
doc.recompute()

boolean25 = body30.newObject("PartDesign::Boolean", "Boolean024")
boolean25.Type = "Fuse"
boolean25.addObjects([body6])
doc.recompute()

boolean26 = body30.newObject("PartDesign::Boolean", "Boolean025")
boolean26.Type = "Fuse"
boolean26.addObjects([body8])
doc.recompute()

boolean27 = body30.newObject("PartDesign::Boolean", "Boolean026")
boolean27.Type = "Fuse"
boolean27.addObjects([body29])
body31 = doc.addObject("PartDesign::Body", "Body030")

# Sketch on XY plane
sketch21 = body31.newObject("Sketcher::SketchObject", "Sketch020")
sketch21.AttachmentSupport = (doc.getObject("XY_Plane030"), [""])
sketch21.MapMode = "FlatFace"
sketch21.AttachmentOffset = App.Placement(App.Vector(0, 0, 11.2), App.Rotation())
sketch21.addGeometry(Part.Circle(App.Vector(0, 0, 0), App.Vector(0, 0, 1), 3), False)
sketch21.addConstraint([
    Sketcher.Constraint("Coincident", 0, 3, -1, 1),
    Sketcher.Constraint("Diameter", 0, 6.0),
])
sketch21.setExpression("Constraints[1]", "Params.sketch21_diameter")
pad21 = body31.newObject("PartDesign::Pad", "Pad020")
pad21.Profile = sketch21
pad21.setExpression("Length", "Params.pad21_length")
body32 = doc.addObject("PartDesign::Body", "Body031")

# Sketch on XY plane
sketch22 = body32.newObject("Sketcher::SketchObject", "Sketch021")
sketch22.AttachmentSupport = (doc.getObject("XY_Plane031"), [""])
sketch22.MapMode = "FlatFace"
sketch22.addGeometry(Part.Circle(App.Vector(0, 0, 0), App.Vector(0, 0, 1), 2.8), False)
sketch22.addConstraint([
    Sketcher.Constraint("Coincident", 0, 3, -1, 1),
    Sketcher.Constraint("Diameter", 0, 5.6),
])
sketch22.setExpression("Constraints[1]", "Params.sketch22_diameter")
pad22 = body32.newObject("PartDesign::Pad", "Pad021")
pad22.Profile = sketch22
pad22.setExpression("Length", "Params.pad22_length")
body33 = doc.addObject("PartDesign::Body", "Body032")

# Sketch on XY plane
sketch23 = body33.newObject("Sketcher::SketchObject", "Sketch022")
sketch23.AttachmentSupport = (doc.getObject("XY_Plane032"), [""])
sketch23.MapMode = "FlatFace"
sketch23.addGeometry(Part.Circle(App.Vector(0, 0, 0), App.Vector(0, 0, 1), 4), False)
sketch23.addConstraint([
    Sketcher.Constraint("Coincident", 0, 3, -1, 1),
    Sketcher.Constraint("Diameter", 0, 8.0),
])
sketch23.setExpression("Constraints[1]", "Params.sketch23_diameter")
pad23 = body33.newObject("PartDesign::Pad", "Pad022")
pad23.Profile = sketch23
pad23.setExpression("Length", "Params.pad23_length")
body34 = doc.addObject("PartDesign::Body", "Body033")

# Sketch on XY plane
sketch24 = body34.newObject("Sketcher::SketchObject", "Sketch023")
sketch24.AttachmentSupport = (doc.getObject("XY_Plane033"), [""])
sketch24.MapMode = "FlatFace"
sketch24.addGeometry(Part.Circle(App.Vector(0, 0, 0), App.Vector(0, 0, 1), 4), False)
sketch24.addConstraint([
    Sketcher.Constraint("Coincident", 0, 3, -1, 1),
    Sketcher.Constraint("Diameter", 0, 8.0),
])
sketch24.setExpression("Constraints[1]", "Params.sketch24_diameter")
pad24 = body34.newObject("PartDesign::Pad", "Pad023")
pad24.Profile = sketch24
pad24.setExpression("Length", "Params.pad24_length")
body35 = doc.addObject("PartDesign::Body", "Body034")

# Sketch on XY plane
sketch25 = body35.newObject("Sketcher::SketchObject", "Sketch024")
sketch25.AttachmentSupport = (doc.getObject("XY_Plane034"), [""])
sketch25.MapMode = "FlatFace"
sketch25.addGeometry(Part.Circle(App.Vector(0, 0, 0), App.Vector(0, 0, 1), 4.8), False)
sketch25.addConstraint([
    Sketcher.Constraint("Coincident", 0, 3, -1, 1),
    Sketcher.Constraint("Diameter", 0, 9.6),
])
sketch25.setExpression("Constraints[1]", "Params.sketch25_diameter")
pad25 = body35.newObject("PartDesign::Pad", "Pad024")
pad25.Profile = sketch25
pad25.setExpression("Length", "Params.pad25_length")
doc.recompute()

boolean28 = body35.newObject("PartDesign::Boolean", "Boolean027")
boolean28.Type = "Cut"
boolean28.addObjects([body34])
body36 = doc.addObject("PartDesign::Body", "Body035")

# Sketch on XY plane
sketch26 = body36.newObject("Sketcher::SketchObject", "Sketch025")
sketch26.AttachmentSupport = (doc.getObject("XY_Plane035"), [""])
sketch26.MapMode = "FlatFace"
sketch26.addGeometry(Part.Circle(App.Vector(0, 0, 0), App.Vector(0, 0, 1), 13), False)
sketch26.addConstraint([
    Sketcher.Constraint("Coincident", 0, 3, -1, 1),
    Sketcher.Constraint("Diameter", 0, 26.5),
])
sketch26.setExpression("Constraints[1]", "Params.sketch26_diameter")
pad26 = body36.newObject("PartDesign::Pad", "Pad025")
pad26.Profile = sketch26
pad26.setExpression("Length", "Params.pad26_length")
body37 = doc.addObject("PartDesign::Body", "Body036")

# Sketch on XZ plane
sketch27 = body37.newObject("Sketcher::SketchObject", "Sketch026")
sketch27.AttachmentSupport = (doc.getObject("XZ_Plane036"), [""])
sketch27.MapMode = "FlatFace"
sketch27.addGeometry([
    Part.LineSegment(App.Vector(0, 11.7, 0), App.Vector(3, 11.7, 0)),
    Part.LineSegment(App.Vector(3, 11.7, 0), App.Vector(2.6, 12.2, 0)),
    Part.LineSegment(App.Vector(2.6, 12.2, 0), App.Vector(0, 12.2, 0)),
    Part.LineSegment(App.Vector(0, 12.2, 0), App.Vector(0, 11.7, 0)),
], False)
sketch27.addConstraint([
    Sketcher.Constraint("Coincident", 0, 2, 1, 1),
    Sketcher.Constraint("Coincident", 1, 2, 2, 1),
    Sketcher.Constraint("Coincident", 2, 2, 3, 1),
    Sketcher.Constraint("Coincident", 3, 2, 0, 1),
    Sketcher.Constraint("Horizontal", 0),
    Sketcher.Constraint("Horizontal", 2),
    Sketcher.Constraint("Vertical", 3),
    Sketcher.Constraint("PointOnObject", 2, 2, -2),
    Sketcher.Constraint("DistanceX", 0, 1, 0, 2, 3.0),
    Sketcher.Constraint("DistanceX", 2, 2, 2, 1, 2.6),
    Sketcher.Constraint("DistanceY", 3, 2, 3, 1, 0.5),
    Sketcher.Constraint("DistanceY", -1, 1, 0, 2, 11.7),
])
sketch27.setExpression("Constraints[8]", "Params.sketch27_width")
sketch27.setExpression("Constraints[9]", "Params.sketch27_width2")
sketch27.setExpression("Constraints[10]", "Params.sketch27_height")
revolution = body37.newObject("PartDesign::Revolution", "Revolution")
revolution.Profile = sketch27
revolution.ReferenceAxis = (sketch27, ["V_Axis"])
revolution.setExpression("Angle", "Params.revolution_angle")
doc.recompute()

boolean29 = body37.newObject("PartDesign::Boolean", "Boolean028")
boolean29.Type = "Fuse"
boolean29.addObjects([body31])
doc.recompute()

boolean30 = body37.newObject("PartDesign::Boolean", "Boolean029")
boolean30.Type = "Fuse"
boolean30.addObjects([body32])
doc.recompute()

boolean31 = body37.newObject("PartDesign::Boolean", "Boolean030")
boolean31.Type = "Fuse"
boolean31.addObjects([body33])
doc.recompute()

boolean32 = body37.newObject("PartDesign::Boolean", "Boolean031")
boolean32.Type = "Fuse"
boolean32.addObjects([body35])
doc.recompute()

boolean33 = body37.newObject("PartDesign::Boolean", "Boolean032")
boolean33.Type = "Fuse"
boolean33.addObjects([body36])
doc.recompute()

boolean34 = body37.newObject("PartDesign::Boolean", "Boolean033")
boolean34.Type = "Cut"
boolean34.addObjects([body30])
body38 = doc.addObject("PartDesign::Body", "Body037")
doc.recompute()

body37.Placement = App.Placement(App.Vector(0, 0, -7.8), App.Rotation(App.Vector(0, 0, 1), 0))
boolean35 = body38.newObject("PartDesign::Boolean", "Boolean034")
boolean35.Type = "Fuse"
boolean35.addObjects([body37])
body39 = doc.addObject("PartDesign::Body", "Body038")

# Sketch on XY plane
sketch28 = body39.newObject("Sketcher::SketchObject", "Sketch027")
sketch28.AttachmentSupport = (doc.getObject("XY_Plane038"), [""])
sketch28.MapMode = "FlatFace"
sketch28.AttachmentOffset = App.Placement(App.Vector(0, 0, -11), App.Rotation())
sketch28.addGeometry(Part.Circle(App.Vector(0, 0, 0), App.Vector(0, 0, 1), 1.5), False)
sketch28.addConstraint([
    Sketcher.Constraint("Coincident", 0, 3, -1, 1),
    Sketcher.Constraint("Diameter", 0, 3.0),
])
sketch28.setExpression("Constraints[1]", "Params.sketch28_diameter")
pad27 = body39.newObject("PartDesign::Pad", "Pad026")
pad27.Profile = sketch28
pad27.setExpression("Length", "Params.pad27_length")
body40 = doc.addObject("PartDesign::Body", "Body039")

# Sketch on XY plane
sketch29 = body40.newObject("Sketcher::SketchObject", "Sketch028")
sketch29.AttachmentSupport = (doc.getObject("XY_Plane039"), [""])
sketch29.MapMode = "FlatFace"
sketch29.addGeometry(Part.Circle(App.Vector(0, 0, 0), App.Vector(0, 0, 1), 8), False)
sketch29.addConstraint([
    Sketcher.Constraint("Coincident", 0, 3, -1, 1),
    Sketcher.Constraint("Diameter", 0, 15.4),
])
sketch29.setExpression("Constraints[1]", "Params.sketch29_diameter")
pad28 = body40.newObject("PartDesign::Pad", "Pad027")
pad28.Profile = sketch29
pad28.setExpression("Length", "Params.pad28_length")
doc.recompute()

boolean36 = body40.newObject("PartDesign::Boolean", "Boolean035")
boolean36.Type = "Fuse"
boolean36.addObjects([body38])
doc.recompute()

boolean37 = body40.newObject("PartDesign::Boolean", "Boolean036")
boolean37.Type = "Fuse"
boolean37.addObjects([body39])
body41 = doc.addObject("PartDesign::Body", "Body040")
doc.recompute()

body40.Placement = App.Placement(App.Vector(13.175, 0, 0), App.Rotation(App.Vector(0, 0, 1), 0))
boolean38 = body41.newObject("PartDesign::Boolean", "Boolean037")
boolean38.Type = "Fuse"
boolean38.addObjects([body40])
body42 = doc.addObject("PartDesign::Body", "Body041")

# Sketch on XY plane
sketch30 = body42.newObject("Sketcher::SketchObject", "Sketch029")
sketch30.AttachmentSupport = (doc.getObject("XY_Plane041"), [""])
sketch30.MapMode = "FlatFace"
sketch30.addGeometry(Part.Circle(App.Vector(0, 0, 0), App.Vector(0, 0, 1), 7), False)
sketch30.addConstraint([
    Sketcher.Constraint("Coincident", 0, 3, -1, 1),
    Sketcher.Constraint("Diameter", 0, 13.5),
])
sketch30.setExpression("Constraints[1]", "Params.sketch30_diameter")
pad29 = body42.newObject("PartDesign::Pad", "Pad028")
pad29.Profile = sketch30
pad29.setExpression("Length", "Params.pad29_length")
doc.recompute()

boolean39 = body42.newObject("PartDesign::Boolean", "Boolean038")
boolean39.Type = "Fuse"
boolean39.addObjects([body])
doc.recompute()

boolean40 = body42.newObject("PartDesign::Boolean", "Boolean039")
boolean40.Type = "Fuse"
boolean40.addObjects([body2])
doc.recompute()

boolean41 = body42.newObject("PartDesign::Boolean", "Boolean040")
boolean41.Type = "Fuse"
boolean41.addObjects([body41])
body43 = doc.addObject("PartDesign::Body", "Body042")
doc.recompute()

body42.Placement = App.Placement(App.Vector(0, 0, 0), App.Rotation(App.Vector(1, 0, 0), 270))
boolean42 = body43.newObject("PartDesign::Boolean", "Boolean041")
boolean42.Type = "Fuse"
boolean42.addObjects([body42])
body44 = doc.addObject("PartDesign::Body", "Body043")
doc.recompute()

body43.Placement = App.Placement(App.Vector(9, -8, 18.4), App.Rotation(App.Vector(0, 0, 1), 90))
boolean43 = body44.newObject("PartDesign::Boolean", "Boolean042")
boolean43.Type = "Fuse"
boolean43.addObjects([body43])

doc.recompute()
